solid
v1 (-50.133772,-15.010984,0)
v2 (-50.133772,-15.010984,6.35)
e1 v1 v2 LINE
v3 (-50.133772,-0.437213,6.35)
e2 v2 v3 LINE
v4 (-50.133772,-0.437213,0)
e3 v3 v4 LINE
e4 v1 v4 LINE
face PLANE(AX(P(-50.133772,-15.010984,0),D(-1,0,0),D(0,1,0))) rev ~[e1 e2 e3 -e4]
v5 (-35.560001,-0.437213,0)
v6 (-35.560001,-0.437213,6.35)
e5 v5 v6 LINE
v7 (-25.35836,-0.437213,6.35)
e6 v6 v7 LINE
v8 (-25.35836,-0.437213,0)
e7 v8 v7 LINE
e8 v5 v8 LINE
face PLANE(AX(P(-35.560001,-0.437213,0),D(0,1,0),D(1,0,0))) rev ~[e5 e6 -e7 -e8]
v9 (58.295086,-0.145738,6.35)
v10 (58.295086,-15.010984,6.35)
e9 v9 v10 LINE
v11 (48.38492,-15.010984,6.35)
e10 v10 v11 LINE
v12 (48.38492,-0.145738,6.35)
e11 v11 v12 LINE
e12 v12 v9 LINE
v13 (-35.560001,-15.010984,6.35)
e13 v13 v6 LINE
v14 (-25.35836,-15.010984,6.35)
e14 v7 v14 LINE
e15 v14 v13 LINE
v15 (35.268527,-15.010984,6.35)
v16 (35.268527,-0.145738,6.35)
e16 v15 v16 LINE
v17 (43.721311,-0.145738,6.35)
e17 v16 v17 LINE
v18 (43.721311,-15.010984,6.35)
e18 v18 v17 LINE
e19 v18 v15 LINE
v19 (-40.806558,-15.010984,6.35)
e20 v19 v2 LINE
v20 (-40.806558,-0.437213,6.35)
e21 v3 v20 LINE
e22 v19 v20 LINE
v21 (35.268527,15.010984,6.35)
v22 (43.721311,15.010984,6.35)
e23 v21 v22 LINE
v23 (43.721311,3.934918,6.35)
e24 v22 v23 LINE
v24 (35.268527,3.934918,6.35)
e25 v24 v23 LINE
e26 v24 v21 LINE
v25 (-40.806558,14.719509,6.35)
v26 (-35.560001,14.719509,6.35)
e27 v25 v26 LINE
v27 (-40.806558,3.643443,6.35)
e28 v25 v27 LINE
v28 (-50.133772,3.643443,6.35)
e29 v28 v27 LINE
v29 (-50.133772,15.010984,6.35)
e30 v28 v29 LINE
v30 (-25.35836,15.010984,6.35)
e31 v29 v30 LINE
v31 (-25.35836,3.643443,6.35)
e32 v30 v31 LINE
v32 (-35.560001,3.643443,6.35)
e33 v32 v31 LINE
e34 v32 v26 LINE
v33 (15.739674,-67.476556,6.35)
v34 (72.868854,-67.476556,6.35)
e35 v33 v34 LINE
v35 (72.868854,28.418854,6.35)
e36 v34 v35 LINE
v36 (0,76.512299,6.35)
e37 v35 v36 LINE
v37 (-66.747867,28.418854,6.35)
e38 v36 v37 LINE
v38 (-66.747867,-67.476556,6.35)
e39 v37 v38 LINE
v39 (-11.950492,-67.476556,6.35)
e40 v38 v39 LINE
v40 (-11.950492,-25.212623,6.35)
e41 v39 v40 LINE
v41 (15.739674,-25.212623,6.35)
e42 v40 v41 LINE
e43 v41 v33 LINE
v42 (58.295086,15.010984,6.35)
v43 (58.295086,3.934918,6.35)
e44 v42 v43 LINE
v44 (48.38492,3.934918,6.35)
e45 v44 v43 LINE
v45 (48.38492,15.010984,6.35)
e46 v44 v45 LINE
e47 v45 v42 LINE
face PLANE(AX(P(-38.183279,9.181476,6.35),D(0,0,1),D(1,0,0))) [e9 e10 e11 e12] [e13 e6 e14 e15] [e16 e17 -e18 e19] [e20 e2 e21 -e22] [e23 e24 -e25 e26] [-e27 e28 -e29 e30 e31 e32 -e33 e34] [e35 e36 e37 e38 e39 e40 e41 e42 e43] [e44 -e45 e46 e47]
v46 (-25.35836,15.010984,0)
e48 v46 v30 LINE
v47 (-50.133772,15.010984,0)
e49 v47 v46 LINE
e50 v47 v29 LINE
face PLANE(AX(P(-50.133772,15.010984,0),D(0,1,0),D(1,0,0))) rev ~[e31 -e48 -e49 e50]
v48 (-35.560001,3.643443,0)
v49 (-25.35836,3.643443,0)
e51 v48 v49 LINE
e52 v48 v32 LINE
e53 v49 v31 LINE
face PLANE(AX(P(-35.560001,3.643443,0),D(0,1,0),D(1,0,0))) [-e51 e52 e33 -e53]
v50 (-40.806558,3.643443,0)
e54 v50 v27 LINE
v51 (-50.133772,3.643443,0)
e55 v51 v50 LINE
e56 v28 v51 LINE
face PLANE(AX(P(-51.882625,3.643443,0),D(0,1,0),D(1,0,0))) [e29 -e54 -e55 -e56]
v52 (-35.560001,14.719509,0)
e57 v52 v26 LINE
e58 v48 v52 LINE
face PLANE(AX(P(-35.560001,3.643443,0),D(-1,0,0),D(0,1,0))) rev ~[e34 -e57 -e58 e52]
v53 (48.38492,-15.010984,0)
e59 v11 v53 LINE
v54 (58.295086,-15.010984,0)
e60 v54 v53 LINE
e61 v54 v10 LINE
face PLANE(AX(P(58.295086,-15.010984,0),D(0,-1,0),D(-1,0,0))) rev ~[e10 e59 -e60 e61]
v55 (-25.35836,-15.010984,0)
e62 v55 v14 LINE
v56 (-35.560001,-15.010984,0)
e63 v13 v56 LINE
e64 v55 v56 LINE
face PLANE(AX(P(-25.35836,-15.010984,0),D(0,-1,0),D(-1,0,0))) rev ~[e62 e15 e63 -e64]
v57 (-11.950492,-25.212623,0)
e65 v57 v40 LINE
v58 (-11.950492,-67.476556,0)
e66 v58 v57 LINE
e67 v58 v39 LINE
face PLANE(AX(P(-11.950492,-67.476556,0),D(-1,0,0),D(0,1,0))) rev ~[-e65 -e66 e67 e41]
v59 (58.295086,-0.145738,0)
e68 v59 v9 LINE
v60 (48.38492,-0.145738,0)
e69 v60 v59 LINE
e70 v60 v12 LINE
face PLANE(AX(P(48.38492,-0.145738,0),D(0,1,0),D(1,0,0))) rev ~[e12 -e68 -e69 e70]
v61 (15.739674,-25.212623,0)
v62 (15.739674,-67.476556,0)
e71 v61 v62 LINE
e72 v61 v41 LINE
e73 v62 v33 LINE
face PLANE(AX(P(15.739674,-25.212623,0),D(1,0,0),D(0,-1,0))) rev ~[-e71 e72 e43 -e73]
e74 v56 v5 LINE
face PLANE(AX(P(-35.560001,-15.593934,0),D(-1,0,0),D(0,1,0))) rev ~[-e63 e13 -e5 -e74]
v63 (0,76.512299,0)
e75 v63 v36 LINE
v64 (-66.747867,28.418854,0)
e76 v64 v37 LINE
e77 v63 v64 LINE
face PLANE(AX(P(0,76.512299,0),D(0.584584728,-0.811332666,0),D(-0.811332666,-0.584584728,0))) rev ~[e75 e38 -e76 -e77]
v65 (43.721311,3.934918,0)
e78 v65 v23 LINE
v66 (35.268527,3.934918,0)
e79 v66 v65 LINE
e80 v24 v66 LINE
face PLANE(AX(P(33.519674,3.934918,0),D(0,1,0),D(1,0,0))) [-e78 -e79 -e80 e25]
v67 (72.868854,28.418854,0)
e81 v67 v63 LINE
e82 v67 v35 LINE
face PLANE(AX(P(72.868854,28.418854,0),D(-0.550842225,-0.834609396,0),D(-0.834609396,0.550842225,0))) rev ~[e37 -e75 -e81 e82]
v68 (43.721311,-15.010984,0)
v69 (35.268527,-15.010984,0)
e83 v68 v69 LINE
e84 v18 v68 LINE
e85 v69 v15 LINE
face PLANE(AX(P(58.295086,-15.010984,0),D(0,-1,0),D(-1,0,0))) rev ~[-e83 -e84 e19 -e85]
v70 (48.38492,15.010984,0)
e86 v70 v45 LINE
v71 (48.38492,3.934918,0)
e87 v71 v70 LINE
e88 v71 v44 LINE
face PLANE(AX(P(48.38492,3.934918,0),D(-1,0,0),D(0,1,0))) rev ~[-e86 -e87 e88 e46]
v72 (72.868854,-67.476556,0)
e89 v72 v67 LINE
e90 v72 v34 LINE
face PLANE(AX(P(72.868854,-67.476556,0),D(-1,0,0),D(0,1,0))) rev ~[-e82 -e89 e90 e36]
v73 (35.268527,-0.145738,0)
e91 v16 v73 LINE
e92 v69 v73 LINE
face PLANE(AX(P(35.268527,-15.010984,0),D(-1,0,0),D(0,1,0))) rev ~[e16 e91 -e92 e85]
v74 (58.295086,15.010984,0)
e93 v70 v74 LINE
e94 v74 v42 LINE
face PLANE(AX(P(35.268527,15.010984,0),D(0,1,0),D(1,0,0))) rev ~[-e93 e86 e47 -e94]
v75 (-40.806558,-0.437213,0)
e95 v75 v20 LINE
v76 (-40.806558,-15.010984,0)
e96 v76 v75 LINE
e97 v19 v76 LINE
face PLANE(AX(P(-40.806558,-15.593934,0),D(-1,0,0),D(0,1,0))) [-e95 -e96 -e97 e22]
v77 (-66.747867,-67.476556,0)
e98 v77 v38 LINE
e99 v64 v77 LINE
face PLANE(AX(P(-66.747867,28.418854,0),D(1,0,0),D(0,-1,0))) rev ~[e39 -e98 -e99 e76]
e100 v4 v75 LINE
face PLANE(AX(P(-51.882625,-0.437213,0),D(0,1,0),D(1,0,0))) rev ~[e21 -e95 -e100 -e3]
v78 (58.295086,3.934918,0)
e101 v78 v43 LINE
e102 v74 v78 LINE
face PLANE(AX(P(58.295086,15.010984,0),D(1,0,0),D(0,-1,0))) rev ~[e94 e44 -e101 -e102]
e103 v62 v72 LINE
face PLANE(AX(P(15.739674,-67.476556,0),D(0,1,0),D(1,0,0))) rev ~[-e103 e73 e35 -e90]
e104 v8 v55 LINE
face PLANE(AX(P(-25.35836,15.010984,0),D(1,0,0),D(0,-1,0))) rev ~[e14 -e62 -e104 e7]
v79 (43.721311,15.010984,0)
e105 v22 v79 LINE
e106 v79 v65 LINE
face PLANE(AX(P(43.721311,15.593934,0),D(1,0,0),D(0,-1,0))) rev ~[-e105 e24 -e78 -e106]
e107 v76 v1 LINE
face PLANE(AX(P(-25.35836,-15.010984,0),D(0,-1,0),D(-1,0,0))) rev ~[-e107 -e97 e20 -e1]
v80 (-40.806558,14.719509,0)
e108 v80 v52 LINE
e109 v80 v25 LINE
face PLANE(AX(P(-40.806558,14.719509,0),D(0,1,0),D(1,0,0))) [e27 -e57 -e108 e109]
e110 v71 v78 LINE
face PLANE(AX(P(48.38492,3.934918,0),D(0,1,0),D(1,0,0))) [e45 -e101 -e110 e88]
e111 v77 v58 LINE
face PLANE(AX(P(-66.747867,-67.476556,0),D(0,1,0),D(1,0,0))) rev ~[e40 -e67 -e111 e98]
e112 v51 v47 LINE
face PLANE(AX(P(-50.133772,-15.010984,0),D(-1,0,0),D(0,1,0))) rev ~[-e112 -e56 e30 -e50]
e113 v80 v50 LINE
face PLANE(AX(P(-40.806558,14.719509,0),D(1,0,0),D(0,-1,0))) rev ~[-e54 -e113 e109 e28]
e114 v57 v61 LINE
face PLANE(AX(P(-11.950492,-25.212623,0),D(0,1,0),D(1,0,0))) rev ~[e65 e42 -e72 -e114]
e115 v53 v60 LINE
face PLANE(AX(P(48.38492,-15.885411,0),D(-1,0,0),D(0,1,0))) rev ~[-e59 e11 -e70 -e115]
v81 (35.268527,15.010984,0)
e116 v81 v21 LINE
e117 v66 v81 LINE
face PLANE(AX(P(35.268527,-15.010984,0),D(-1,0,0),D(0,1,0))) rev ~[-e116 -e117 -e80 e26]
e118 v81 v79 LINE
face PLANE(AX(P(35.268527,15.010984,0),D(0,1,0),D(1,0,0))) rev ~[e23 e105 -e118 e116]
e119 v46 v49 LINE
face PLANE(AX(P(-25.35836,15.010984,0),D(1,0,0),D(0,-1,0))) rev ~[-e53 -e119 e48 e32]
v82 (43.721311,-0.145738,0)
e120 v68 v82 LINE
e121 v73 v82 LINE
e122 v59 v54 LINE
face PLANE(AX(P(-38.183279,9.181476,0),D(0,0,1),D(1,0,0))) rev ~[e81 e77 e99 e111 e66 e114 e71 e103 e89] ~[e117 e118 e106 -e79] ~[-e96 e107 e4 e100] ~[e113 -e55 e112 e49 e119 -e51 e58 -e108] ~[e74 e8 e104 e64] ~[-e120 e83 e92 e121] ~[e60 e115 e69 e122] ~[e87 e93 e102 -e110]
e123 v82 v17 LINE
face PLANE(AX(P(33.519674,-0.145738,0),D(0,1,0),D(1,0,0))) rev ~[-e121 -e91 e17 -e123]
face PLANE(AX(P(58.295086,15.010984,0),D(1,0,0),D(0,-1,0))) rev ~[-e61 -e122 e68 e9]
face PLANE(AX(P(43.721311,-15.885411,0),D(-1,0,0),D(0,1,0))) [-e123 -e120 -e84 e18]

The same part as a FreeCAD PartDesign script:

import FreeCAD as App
import Part
import Sketcher
from FreeCAD import Vector
Q = App.Units.Quantity

doc = App.newDocument("Part")
body = doc.addObject("PartDesign::Body", "Body")

# Sketch on XY plane
sketch1 = doc.addObject("Sketcher::SketchObject", "Sketch")
body.addObject(sketch1)
sketch1.AttachmentSupport = (doc.XY_Plane, [""])
sketch1.MapMode = "FlatFace"
sketch1.addGeometry([
    Part.LineSegment(Vector(-66.747867, 28.418854, 0), Vector(-66.747867, -67.476556, 0)),  # 0
    Part.LineSegment(Vector(-66.747867, -67.476556, 0), Vector(-11.950492, -67.476556, 0)),  # 1
    Part.LineSegment(Vector(-11.950492, -67.476556, 0), Vector(-11.950492, -25.212623, 0)),  # 2
    Part.LineSegment(Vector(-11.950492, -25.212623, 0), Vector(15.739674, -25.212623, 0)),  # 3
    Part.LineSegment(Vector(15.739674, -25.212623, 0), Vector(15.739674, -67.476556, 0)),  # 4
    Part.LineSegment(Vector(15.739674, -67.476556, 0), Vector(72.868854, -67.476556, 0)),  # 5
    Part.LineSegment(Vector(72.868854, -67.476556, 0), Vector(72.868854, 28.418854, 0)),  # 6
    Part.LineSegment(Vector(72.868854, 28.418854, 0), Vector(0, 76.512299, 0)),  # 7
    Part.LineSegment(Vector(0, 76.512299, 0), Vector(-66.747867, 28.418854, 0)),  # 8
    Part.LineSegment(Vector(-50.133772, -15.010984, 0), Vector(-50.133772, 15.010984, 0)),  # 9
    Part.LineSegment(Vector(-50.133772, 15.010984, 0), Vector(-25.35836, 15.010984, 0)),  # 10
    Part.LineSegment(Vector(-25.35836, 15.010984, 0), Vector(-25.35836, -15.010984, 0)),  # 11
    Part.LineSegment(Vector(-25.35836, -15.010984, 0), Vector(-50.133772, -15.010984, 0)),  # 12
    Part.LineSegment(Vector(35.268527, -15.010984, 0), Vector(35.268527, 15.010984, 0)),  # 13
    Part.LineSegment(Vector(35.268527, 15.010984, 0), Vector(58.295086, 15.010984, 0)),  # 14
    Part.LineSegment(Vector(58.295086, 15.010984, 0), Vector(58.295086, -15.010984, 0)),  # 15
    Part.LineSegment(Vector(58.295086, -15.010984, 0), Vector(35.268527, -15.010984, 0)),  # 16
], False)
sketch1.addConstraint([
    Sketcher.Constraint("Coincident", 0, 2, 1, 1),
    Sketcher.Constraint("Coincident", 1, 2, 2, 1),
    Sketcher.Constraint("Coincident", 2, 2, 3, 1),
    Sketcher.Constraint("Coincident", 3, 2, 4, 1),
    Sketcher.Constraint("Coincident", 4, 2, 5, 1),
    Sketcher.Constraint("Coincident", 5, 2, 6, 1),
    Sketcher.Constraint("Coincident", 6, 2, 7, 1),
    Sketcher.Constraint("Coincident", 7, 2, 8, 1),
    Sketcher.Constraint("Coincident", 8, 2, 0, 1),
    Sketcher.Constraint("Coincident", 9, 2, 10, 1),
    Sketcher.Constraint("Coincident", 10, 2, 11, 1),
    Sketcher.Constraint("Coincident", 11, 2, 12, 1),
    Sketcher.Constraint("Coincident", 12, 2, 9, 1),
    Sketcher.Constraint("Coincident", 13, 2, 14, 1),
    Sketcher.Constraint("Coincident", 14, 2, 15, 1),
    Sketcher.Constraint("Coincident", 15, 2, 16, 1),
    Sketcher.Constraint("Coincident", 16, 2, 13, 1),
    Sketcher.Constraint("Vertical", 0),
    Sketcher.Constraint("Horizontal", 1),
    Sketcher.Constraint("Vertical", 2),
    Sketcher.Constraint("Horizontal", 3),
    Sketcher.Constraint("Vertical", 4),
    Sketcher.Constraint("Horizontal", 5),
    Sketcher.Constraint("Vertical", 6),
    Sketcher.Constraint("Vertical", 9),
    Sketcher.Constraint("Horizontal", 10),
    Sketcher.Constraint("Vertical", 11),
    Sketcher.Constraint("Horizontal", 12),
    Sketcher.Constraint("Vertical", 13),
    Sketcher.Constraint("Horizontal", 14),
    Sketcher.Constraint("Vertical", 15),
    Sketcher.Constraint("Horizontal", 16),
    Sketcher.Constraint("PointOnObject", 7, 2, -2),
    Sketcher.Constraint("Horizontal", 1, 2, 4, 2),
    Sketcher.Constraint("Horizontal", 6, 2, 8, 2),
    Sketcher.Constraint("Horizontal", 10, 2, 13, 2),
    Sketcher.Constraint("Horizontal", 12, 2, 15, 2),
    Sketcher.Constraint("DistanceX", 5, 1, 5, 2, 57.12918),
    Sketcher.Constraint("DistanceX", 10, 1, 10, 2, 24.775412),
    Sketcher.Constraint("DistanceX", 14, 1, 14, 2, 23.02656),
    Sketcher.Constraint("DistanceY", 0, 2, 0, 1, 95.89541),
    Sketcher.Constraint("DistanceY", -1, 1, 7, 2, 76.512299),
    Sketcher.Constraint("Distance", 7, 87.308931),
    Sketcher.Constraint("Distance", 8, 82.269418),
    Sketcher.Constraint("DistanceX", 1, 1, 1, 2, 54.797375),
    Sketcher.Constraint("DistanceX", 3, 1, 3, 2, 27.690166),
    Sketcher.Constraint("DistanceY", 2, 1, 2, 2, 42.263933),
    Sketcher.Constraint("DistanceY", 9, 1, 9, 2, 30.021967),
    Sketcher.Constraint("DistanceX", 10, 2, -1, 1, 25.35836),
    Sketcher.Constraint("DistanceY", 9, 2, 8, 2, 13.40787),
    Sketcher.Constraint("DistanceX", 2, 2, 13, 2, 47.219018),
])
pad1 = doc.addObject("PartDesign::Pad", "Pad")
body.addObject(pad1)
pad1.Profile = sketch1
pad1.Length = Q("0.25 in")

# Sketch on XY plane
sketch2 = doc.addObject("Sketcher::SketchObject", "Sketch001")
body.addObject(sketch2)
sketch2.AttachmentSupport = (doc.XY_Plane, [""])
sketch2.MapMode = "FlatFace"
sketch2.addGeometry([
    Part.LineSegment(Vector(43.721311, 15.593934, 0), Vector(43.721311, 3.934918, 0)),  # 0
    Part.LineSegment(Vector(43.721311, 3.934918, 0), Vector(33.519674, 3.934918, 0)),  # 1
    Part.LineSegment(Vector(33.519674, 3.934918, 0), Vector(33.519674, -0.145738, 0)),  # 2
    Part.LineSegment(Vector(33.519674, -0.145738, 0), Vector(43.721311, -0.145738, 0)),  # 3
    Part.LineSegment(Vector(43.721311, -0.145738, 0), Vector(43.721311, -15.885411, 0)),  # 4
    Part.LineSegment(Vector(43.721311, -15.885411, 0), Vector(48.38492, -15.885411, 0)),  # 5
    Part.LineSegment(Vector(48.38492, -15.885411, 0), Vector(48.38492, -0.145738, 0)),  # 6
    Part.LineSegment(Vector(48.38492, -0.145738, 0), Vector(59.169512, -0.145738, 0)),  # 7
    Part.LineSegment(Vector(59.169512, -0.145738, 0), Vector(59.169512, 3.934918, 0)),  # 8
    Part.LineSegment(Vector(59.169512, 3.934918, 0), Vector(48.38492, 3.934918, 0)),  # 9
    Part.LineSegment(Vector(48.38492, 3.934918, 0), Vector(48.38492, 15.593934, 0)),  # 10
    Part.LineSegment(Vector(48.38492, 15.593934, 0), Vector(43.721311, 15.593934, 0)),  # 11
], False)
sketch2.addConstraint([
    Sketcher.Constraint("Coincident", 0, 2, 1, 1),
    Sketcher.Constraint("Coincident", 1, 2, 2, 1),
    Sketcher.Constraint("Coincident", 2, 2, 3, 1),
    Sketcher.Constraint("Coincident", 3, 2, 4, 1),
    Sketcher.Constraint("Coincident", 4, 2, 5, 1),
    Sketcher.Constraint("Coincident", 5, 2, 6, 1),
    Sketcher.Constraint("Coincident", 6, 2, 7, 1),
    Sketcher.Constraint("Coincident", 7, 2, 8, 1),
    Sketcher.Constraint("Coincident", 8, 2, 9, 1),
    Sketcher.Constraint("Coincident", 9, 2, 10, 1),
    Sketcher.Constraint("Coincident", 10, 2, 11, 1),
    Sketcher.Constraint("Coincident", 11, 2, 0, 1),
    Sketcher.Constraint("Vertical", 0),
    Sketcher.Constraint("Horizontal", 1),
    Sketcher.Constraint("Vertical", 2),
    Sketcher.Constraint("Horizontal", 3),
    Sketcher.Constraint("Vertical", 4),
    Sketcher.Constraint("Horizontal", 5),
    Sketcher.Constraint("Vertical", 6),
    Sketcher.Constraint("Horizontal", 7),
    Sketcher.Constraint("Vertical", 8),
    Sketcher.Constraint("Horizontal", 9),
    Sketcher.Constraint("Vertical", 10),
    Sketcher.Constraint("Horizontal", 11),
    Sketcher.Constraint("Horizontal", 3, 2, 6, 2),
    Sketcher.Constraint("Horizontal", 1, 2, 8, 2),
    Sketcher.Constraint("Vertical", 0, 2, 3, 2),
    Sketcher.Constraint("Vertical", 6, 2, 9, 2),
    Sketcher.Constraint("DistanceX", 5, 1, 5, 2, 4.663609),
    Sketcher.Constraint("DistanceX", 3, 2, 7, 2, 15.448201),
    Sketcher.Constraint("DistanceX", 1, 2, 1, 1, 10.201637),
    Sketcher.Constraint("DistanceY", 0, 2, 0, 1, 11.659016),
    Sketcher.Constraint("DistanceY", 2, 2, 2, 1, 4.080656),
    Sketcher.Constraint("DistanceY", 4, 2, 4, 1, 15.739672),
    Sketcher.Constraint("DistanceX", -1, 1, 0, 2, 43.721311),
    Sketcher.Constraint("DistanceY", 2, 2, -1, 1, 0.145738),
])
pad2 = doc.addObject("PartDesign::Pad", "Pad001")
body.addObject(pad2)
pad2.Profile = sketch2
pad2.Length = Q("0.25 in")

# Sketch on XY plane
sketch3 = doc.addObject("Sketcher::SketchObject", "Sketch002")
body.addObject(sketch3)
sketch3.AttachmentSupport = (doc.XY_Plane, [""])
sketch3.MapMode = "FlatFace"
sketch3.addGeometry([
    Part.LineSegment(Vector(-40.806558, 14.719509, 0), Vector(-40.806558, 3.643443, 0)),  # 0
    Part.LineSegment(Vector(-40.806558, 3.643443, 0), Vector(-51.882625, 3.643443, 0)),  # 1
    Part.LineSegment(Vector(-51.882625, 3.643443, 0), Vector(-51.882625, -0.437213, 0)),  # 2
    Part.LineSegment(Vector(-51.882625, -0.437213, 0), Vector(-40.806558, -0.437213, 0)),  # 3
    Part.LineSegment(Vector(-40.806558, -0.437213, 0), Vector(-40.806558, -15.593934, 0)),  # 4
    Part.LineSegment(Vector(-40.806558, -15.593934, 0), Vector(-35.560001, -15.593934, 0)),  # 5
    Part.LineSegment(Vector(-35.560001, -15.593934, 0), Vector(-35.560001, -0.437213, 0)),  # 6
    Part.LineSegment(Vector(-35.560001, -0.437213, 0), Vector(-25.066886, -0.437213, 0)),  # 7
    Part.LineSegment(Vector(-25.066886, -0.437213, 0), Vector(-25.066886, 3.643443, 0)),  # 8
    Part.LineSegment(Vector(-25.066886, 3.643443, 0), Vector(-35.560001, 3.643443, 0)),  # 9
    Part.LineSegment(Vector(-35.560001, 3.643443, 0), Vector(-35.560001, 14.719509, 0)),  # 10
    Part.LineSegment(Vector(-35.560001, 14.719509, 0), Vector(-40.806558, 14.719509, 0)),  # 11
], False)
sketch3.addConstraint([
    Sketcher.Constraint("Coincident", 0, 2, 1, 1),
    Sketcher.Constraint("Coincident", 1, 2, 2, 1),
    Sketcher.Constraint("Coincident", 2, 2, 3, 1),
    Sketcher.Constraint("Coincident", 3, 2, 4, 1),
    Sketcher.Constraint("Coincident", 4, 2, 5, 1),
    Sketcher.Constraint("Coincident", 5, 2, 6, 1),
    Sketcher.Constraint("Coincident", 6, 2, 7, 1),
    Sketcher.Constraint("Coincident", 7, 2, 8, 1),
    Sketcher.Constraint("Coincident", 8, 2, 9, 1),
    Sketcher.Constraint("Coincident", 9, 2, 10, 1),
    Sketcher.Constraint("Coincident", 10, 2, 11, 1),
    Sketcher.Constraint("Coincident", 11, 2, 0, 1),
    Sketcher.Constraint("Vertical", 0),
    Sketcher.Constraint("Horizontal", 1),
    Sketcher.Constraint("Vertical", 2),
    Sketcher.Constraint("Horizontal", 3),
    Sketcher.Constraint("Vertical", 4),
    Sketcher.Constraint("Horizontal", 5),
    Sketcher.Constraint("Vertical", 6),
    Sketcher.Constraint("Horizontal", 7),
    Sketcher.Constraint("Vertical", 8),
    Sketcher.Constraint("Horizontal", 9),
    Sketcher.Constraint("Vertical", 10),
    Sketcher.Constraint("Horizontal", 11),
    Sketcher.Constraint("Horizontal", 3, 2, 6, 2),
    Sketcher.Constraint("Horizontal", 1, 2, 8, 2),
    Sketcher.Constraint("Vertical", 0, 2, 3, 2),
    Sketcher.Constraint("Vertical", 6, 2, 9, 2),
    Sketcher.Constraint("Equal", 3, 0),
    Sketcher.Constraint("DistanceX", 5, 2, -1, 1, Q("1.4 in")),
    Sketcher.Constraint("DistanceY", 4, 2, 4, 1, 15.156721),
    Sketcher.Constraint("DistanceX", 1, 2, 1, 1, 11.076067),
    Sketcher.Constraint("DistanceX", 5, 1, 5, 2, 5.246557),
    Sketcher.Constraint("DistanceX", 7, 1, 7, 2, 10.493115),
    Sketcher.Constraint("DistanceY", 2, 2, 2, 1, 4.080655),
    Sketcher.Constraint("DistanceY", -1, 1, 10, 2, 14.719509),
])
pad3 = doc.addObject("PartDesign::Pad", "Pad002")
body.addObject(pad3)
pad3.Profile = sketch3
pad3.Length = Q("0.25 in")

doc.recompute()
